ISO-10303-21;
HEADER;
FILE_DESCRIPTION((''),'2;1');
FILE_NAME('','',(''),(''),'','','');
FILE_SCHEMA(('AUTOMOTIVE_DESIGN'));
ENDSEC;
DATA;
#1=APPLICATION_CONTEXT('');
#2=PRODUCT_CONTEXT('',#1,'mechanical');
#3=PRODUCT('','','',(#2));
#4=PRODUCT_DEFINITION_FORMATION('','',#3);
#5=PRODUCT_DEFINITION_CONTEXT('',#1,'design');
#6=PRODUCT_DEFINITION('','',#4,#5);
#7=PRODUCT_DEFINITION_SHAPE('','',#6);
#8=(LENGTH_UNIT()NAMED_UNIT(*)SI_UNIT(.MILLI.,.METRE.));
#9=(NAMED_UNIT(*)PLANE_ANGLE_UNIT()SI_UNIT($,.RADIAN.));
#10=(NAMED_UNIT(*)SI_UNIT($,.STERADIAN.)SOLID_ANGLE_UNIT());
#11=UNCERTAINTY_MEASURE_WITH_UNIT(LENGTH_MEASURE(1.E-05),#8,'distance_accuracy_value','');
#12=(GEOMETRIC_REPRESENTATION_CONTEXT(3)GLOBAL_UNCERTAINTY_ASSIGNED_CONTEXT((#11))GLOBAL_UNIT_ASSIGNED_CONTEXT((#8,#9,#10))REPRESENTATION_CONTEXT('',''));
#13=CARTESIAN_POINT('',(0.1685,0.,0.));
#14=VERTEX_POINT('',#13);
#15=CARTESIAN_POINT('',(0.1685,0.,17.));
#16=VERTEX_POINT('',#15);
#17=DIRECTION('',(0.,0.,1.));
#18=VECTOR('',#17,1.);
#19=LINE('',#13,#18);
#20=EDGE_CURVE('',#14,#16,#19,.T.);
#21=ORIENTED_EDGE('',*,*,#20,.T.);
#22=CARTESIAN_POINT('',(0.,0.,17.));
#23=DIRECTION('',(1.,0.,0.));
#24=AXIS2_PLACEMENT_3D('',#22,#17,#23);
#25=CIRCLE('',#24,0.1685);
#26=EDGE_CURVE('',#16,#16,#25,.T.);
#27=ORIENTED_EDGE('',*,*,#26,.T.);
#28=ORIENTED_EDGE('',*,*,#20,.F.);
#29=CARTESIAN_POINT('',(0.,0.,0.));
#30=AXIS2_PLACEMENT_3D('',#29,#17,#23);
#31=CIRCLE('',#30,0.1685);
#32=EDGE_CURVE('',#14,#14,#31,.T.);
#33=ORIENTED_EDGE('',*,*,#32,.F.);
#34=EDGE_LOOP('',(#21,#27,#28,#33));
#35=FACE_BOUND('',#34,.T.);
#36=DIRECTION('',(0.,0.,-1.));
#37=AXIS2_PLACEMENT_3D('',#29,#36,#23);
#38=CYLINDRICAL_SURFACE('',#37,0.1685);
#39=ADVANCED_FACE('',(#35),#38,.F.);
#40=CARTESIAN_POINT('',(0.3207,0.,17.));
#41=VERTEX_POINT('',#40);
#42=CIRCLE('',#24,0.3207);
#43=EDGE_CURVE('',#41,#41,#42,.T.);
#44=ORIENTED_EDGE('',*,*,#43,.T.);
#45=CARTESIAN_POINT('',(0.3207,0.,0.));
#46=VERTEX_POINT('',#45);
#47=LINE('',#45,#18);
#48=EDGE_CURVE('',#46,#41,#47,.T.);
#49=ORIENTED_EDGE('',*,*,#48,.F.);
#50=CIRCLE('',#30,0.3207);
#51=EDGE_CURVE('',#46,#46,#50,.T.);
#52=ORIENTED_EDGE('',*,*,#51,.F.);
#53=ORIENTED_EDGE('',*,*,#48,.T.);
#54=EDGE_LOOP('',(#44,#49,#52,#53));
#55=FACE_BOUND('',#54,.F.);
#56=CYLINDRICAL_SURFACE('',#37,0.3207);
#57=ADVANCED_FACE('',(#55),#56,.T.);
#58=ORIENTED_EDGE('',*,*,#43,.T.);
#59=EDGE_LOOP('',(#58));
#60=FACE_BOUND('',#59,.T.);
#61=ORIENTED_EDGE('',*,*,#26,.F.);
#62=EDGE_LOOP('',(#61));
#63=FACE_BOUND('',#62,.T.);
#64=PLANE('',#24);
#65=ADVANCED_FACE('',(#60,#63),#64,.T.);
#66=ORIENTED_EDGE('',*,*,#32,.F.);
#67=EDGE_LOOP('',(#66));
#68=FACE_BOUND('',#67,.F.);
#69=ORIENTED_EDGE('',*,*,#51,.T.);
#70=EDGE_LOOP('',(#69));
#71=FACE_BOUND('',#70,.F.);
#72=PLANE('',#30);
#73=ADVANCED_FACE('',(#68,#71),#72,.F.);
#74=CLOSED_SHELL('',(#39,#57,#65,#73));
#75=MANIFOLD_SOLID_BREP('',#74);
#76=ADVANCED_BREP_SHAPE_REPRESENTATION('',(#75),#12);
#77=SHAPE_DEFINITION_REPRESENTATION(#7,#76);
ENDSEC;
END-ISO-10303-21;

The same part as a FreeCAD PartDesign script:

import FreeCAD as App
import Part
import Sketcher

doc = App.newDocument("Part")
body = doc.addObject("PartDesign::Body", "Body")

sketch1 = body.newObject("Sketcher::SketchObject", "Sketch")
sketch1.AttachmentSupport = (doc.getObject("XY_Plane"), [""])
sketch1.MapMode = "FlatFace"
sketch1.addGeometry(Part.Circle(App.Vector(0, 0, 0), App.Vector(0, 0, 1), 0.32), False)
sketch1.addGeometry(Part.Circle(App.Vector(0, 0, 0), App.Vector(0, 0, 1), 0.17), False)
sketch1.addConstraint(Sketcher.Constraint("Coincident", 0, 3, -1, 1))
sketch1.addConstraint(Sketcher.Constraint("Coincident", 1, 3, -1, 1))
sketch1.addConstraint(Sketcher.Constraint("Diameter", 1, 0.337))
sketch1.addConstraint(Sketcher.Constraint("Diameter", 0, 0.6414))
pad1 = body.newObject("PartDesign::Pad", "Pad")
pad1.Profile = sketch1
pad1.Length = 17

doc.recompute()
